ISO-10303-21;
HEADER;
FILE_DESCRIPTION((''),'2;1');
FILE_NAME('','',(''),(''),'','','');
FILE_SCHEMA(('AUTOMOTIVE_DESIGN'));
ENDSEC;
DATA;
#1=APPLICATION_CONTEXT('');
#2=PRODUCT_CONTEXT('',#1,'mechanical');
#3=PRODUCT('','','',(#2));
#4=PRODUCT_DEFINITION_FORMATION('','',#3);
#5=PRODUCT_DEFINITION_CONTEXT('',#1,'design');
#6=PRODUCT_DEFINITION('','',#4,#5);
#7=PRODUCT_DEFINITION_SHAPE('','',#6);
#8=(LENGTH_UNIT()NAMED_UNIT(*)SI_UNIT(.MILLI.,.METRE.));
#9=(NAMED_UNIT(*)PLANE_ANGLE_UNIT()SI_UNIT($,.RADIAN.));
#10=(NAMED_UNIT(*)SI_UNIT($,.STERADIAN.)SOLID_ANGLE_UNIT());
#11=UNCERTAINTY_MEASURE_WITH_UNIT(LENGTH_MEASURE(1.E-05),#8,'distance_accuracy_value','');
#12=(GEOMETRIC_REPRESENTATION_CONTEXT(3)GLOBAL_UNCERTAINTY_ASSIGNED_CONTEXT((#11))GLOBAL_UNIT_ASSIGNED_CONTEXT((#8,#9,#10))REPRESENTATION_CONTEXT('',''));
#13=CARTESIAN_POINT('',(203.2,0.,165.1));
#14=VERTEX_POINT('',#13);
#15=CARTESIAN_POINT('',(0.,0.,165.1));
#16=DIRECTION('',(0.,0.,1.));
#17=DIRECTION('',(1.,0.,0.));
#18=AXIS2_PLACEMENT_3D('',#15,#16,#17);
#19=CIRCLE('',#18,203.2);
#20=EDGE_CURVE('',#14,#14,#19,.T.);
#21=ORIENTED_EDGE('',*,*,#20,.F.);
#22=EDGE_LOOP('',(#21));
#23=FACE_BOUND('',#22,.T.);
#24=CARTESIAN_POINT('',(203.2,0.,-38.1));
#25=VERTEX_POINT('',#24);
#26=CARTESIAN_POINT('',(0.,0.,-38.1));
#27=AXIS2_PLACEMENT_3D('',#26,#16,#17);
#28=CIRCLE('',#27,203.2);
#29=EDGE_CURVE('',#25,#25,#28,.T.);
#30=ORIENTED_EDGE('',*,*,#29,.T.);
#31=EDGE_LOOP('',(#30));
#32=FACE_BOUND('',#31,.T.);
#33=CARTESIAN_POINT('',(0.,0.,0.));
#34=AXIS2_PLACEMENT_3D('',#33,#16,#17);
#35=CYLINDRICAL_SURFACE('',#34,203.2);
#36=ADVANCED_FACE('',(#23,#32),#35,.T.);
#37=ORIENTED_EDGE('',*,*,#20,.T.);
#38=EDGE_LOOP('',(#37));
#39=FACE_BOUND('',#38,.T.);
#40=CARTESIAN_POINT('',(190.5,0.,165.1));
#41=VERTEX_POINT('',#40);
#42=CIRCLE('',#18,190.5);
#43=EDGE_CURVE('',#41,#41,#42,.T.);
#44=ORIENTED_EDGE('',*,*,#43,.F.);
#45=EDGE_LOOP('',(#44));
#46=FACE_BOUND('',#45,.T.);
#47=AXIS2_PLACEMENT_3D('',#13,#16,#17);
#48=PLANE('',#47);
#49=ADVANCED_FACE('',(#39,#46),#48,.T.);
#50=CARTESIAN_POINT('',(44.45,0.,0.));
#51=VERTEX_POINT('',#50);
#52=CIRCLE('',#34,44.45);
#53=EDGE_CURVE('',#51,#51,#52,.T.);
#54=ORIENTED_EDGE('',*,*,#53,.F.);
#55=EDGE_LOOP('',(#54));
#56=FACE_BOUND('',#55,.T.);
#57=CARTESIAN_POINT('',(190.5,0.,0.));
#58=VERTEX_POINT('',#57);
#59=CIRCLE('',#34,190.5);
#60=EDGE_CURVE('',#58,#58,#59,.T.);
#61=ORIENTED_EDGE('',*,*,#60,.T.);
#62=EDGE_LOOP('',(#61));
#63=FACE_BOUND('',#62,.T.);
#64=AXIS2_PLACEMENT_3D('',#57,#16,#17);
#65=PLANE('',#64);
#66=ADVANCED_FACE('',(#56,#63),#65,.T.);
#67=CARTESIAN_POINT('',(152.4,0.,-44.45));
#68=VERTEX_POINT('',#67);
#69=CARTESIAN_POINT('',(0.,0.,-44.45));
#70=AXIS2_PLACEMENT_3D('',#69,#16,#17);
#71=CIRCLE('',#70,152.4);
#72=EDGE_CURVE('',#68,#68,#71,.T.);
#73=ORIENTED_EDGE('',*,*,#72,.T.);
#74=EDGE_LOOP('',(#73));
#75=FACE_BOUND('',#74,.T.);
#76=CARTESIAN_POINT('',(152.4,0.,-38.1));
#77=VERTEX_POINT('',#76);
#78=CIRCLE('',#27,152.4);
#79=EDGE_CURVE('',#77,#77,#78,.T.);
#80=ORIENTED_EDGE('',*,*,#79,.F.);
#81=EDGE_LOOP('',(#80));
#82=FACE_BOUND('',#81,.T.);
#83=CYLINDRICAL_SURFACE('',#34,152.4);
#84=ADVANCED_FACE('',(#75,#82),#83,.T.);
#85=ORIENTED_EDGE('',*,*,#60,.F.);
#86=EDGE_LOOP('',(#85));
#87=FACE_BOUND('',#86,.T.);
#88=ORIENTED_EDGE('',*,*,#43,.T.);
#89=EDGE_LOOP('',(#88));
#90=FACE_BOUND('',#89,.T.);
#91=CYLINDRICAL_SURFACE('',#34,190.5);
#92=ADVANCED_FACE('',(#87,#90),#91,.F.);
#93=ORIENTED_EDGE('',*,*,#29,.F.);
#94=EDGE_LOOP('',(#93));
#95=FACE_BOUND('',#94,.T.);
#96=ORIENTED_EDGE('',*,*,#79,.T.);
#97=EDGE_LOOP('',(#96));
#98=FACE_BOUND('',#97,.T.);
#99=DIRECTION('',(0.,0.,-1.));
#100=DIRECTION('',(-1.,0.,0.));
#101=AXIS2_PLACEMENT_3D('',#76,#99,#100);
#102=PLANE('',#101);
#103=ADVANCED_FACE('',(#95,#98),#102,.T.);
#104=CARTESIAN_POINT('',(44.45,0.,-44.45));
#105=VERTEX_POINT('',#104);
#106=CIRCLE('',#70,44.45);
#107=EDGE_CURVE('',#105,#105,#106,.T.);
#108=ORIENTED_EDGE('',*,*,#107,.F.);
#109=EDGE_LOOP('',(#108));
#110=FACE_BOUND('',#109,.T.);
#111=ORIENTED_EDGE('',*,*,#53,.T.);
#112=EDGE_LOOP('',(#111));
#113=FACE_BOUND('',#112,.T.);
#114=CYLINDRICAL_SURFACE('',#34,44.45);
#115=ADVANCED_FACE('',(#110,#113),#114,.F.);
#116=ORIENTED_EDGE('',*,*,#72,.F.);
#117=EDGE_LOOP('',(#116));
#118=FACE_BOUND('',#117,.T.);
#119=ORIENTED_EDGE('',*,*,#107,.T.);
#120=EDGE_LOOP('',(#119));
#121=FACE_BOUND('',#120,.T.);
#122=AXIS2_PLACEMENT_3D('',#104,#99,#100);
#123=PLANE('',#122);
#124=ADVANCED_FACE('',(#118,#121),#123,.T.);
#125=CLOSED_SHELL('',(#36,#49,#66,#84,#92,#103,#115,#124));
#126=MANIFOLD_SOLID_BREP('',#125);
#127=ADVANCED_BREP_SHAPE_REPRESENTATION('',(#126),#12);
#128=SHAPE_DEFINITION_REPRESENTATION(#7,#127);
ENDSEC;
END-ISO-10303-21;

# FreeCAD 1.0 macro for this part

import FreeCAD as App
import Part
import Sketcher
Q = App.Units.Quantity


def add_polygon(sketch, points):
    """Adds a closed chain of lines whose ends are joined by coincident constraints."""
    first, n = sketch.GeometryCount, len(points)
    for a, b in zip(points, points[1:] + points[:1]):
        sketch.addGeometry(Part.LineSegment(App.Vector(*a, 0), App.Vector(*b, 0)), False)
    for i in range(n):
        sketch.addConstraint(Sketcher.Constraint("Coincident", first + i, 2, first + (i + 1) % n, 1))

doc = App.newDocument("Part")
body = doc.addObject("PartDesign::Body", "Body")

# Sketch on XZ plane
sketch1 = body.newObject("Sketcher::SketchObject", "Sketch")
sketch1.AttachmentSupport = (doc.getObject("XZ_Plane"), [""])
sketch1.MapMode = "FlatFace"
add_polygon(sketch1, [(44.45, -44.45), (44.45, 0), (190.5, 0), (190.5, 165.1), (203.2, 165.1), (203.2, -38.1), (152.4, -38.1), (152.4, -44.45)])  # lines 0-7
sketch1.addConstraint(Sketcher.Constraint("Vertical", 0))
sketch1.addConstraint(Sketcher.Constraint("Horizontal", 1))
sketch1.addConstraint(Sketcher.Constraint("Vertical", 2))
sketch1.addConstraint(Sketcher.Constraint("Horizontal", 3))
sketch1.addConstraint(Sketcher.Constraint("Vertical", 4))
sketch1.addConstraint(Sketcher.Constraint("Horizontal", 5))
sketch1.addConstraint(Sketcher.Constraint("Vertical", 6))
sketch1.addConstraint(Sketcher.Constraint("Horizontal", 7))
sketch1.addConstraint(Sketcher.Constraint("PointOnObject", 0, 2, -1))
sketch1.addConstraint(Sketcher.Constraint("DistanceX", 5, 2, 5, 1, Q("2 in")))
sketch1.addConstraint(Sketcher.Constraint("DistanceY", 4, 2, 4, 1, Q("8 in")))
sketch1.addConstraint(Sketcher.Constraint("DistanceX", 3, 1, 3, 2, Q("0.5 in")))
sketch1.addConstraint(Sketcher.Constraint("DistanceY", 2, 1, 2, 2, Q("6.5 in")))
sketch1.addConstraint(Sketcher.Constraint("DistanceX", -1, 1, 3, 2, Q("8 in")))
sketch1.addConstraint(Sketcher.Constraint("DistanceX", 1, 1, 1, 2, Q("5.75 in")))
sketch1.addConstraint(Sketcher.Constraint("DistanceY", 0, 1, 0, 2, Q("1.75 in")))
revolution = body.newObject("PartDesign::Revolution", "Revolution")
revolution.Profile = sketch1
revolution.ReferenceAxis = (sketch1, ["V_Axis"])
revolution.Angle = 360

doc.recompute()
